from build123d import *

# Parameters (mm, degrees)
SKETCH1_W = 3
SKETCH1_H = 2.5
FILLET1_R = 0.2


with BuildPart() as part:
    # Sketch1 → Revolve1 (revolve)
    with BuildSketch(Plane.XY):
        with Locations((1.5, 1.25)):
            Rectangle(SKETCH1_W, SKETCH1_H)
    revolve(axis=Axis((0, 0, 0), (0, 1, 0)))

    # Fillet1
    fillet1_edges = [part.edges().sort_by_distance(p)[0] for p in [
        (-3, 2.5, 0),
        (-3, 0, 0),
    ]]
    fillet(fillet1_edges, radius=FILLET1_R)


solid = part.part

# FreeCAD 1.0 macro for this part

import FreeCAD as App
import Part
import Sketcher


def edges_at(feature, points):
    """Names of the edges that pass closest to the given points."""
    edges = feature.Shape.Edges
    near = lambda p: min(range(len(edges)), key=lambda i: edges[i].distToShape(Part.Vertex(*p))[0])
    return sorted({f"Edge{near(p) + 1}" for p in points})


def add_polygon(sketch, points):
    """Adds a closed chain of lines whose ends are joined by coincident constraints."""
    first, n = sketch.GeometryCount, len(points)
    for a, b in zip(points, points[1:] + points[:1]):
        sketch.addGeometry(Part.LineSegment(App.Vector(*a, 0), App.Vector(*b, 0)), False)
    for i in range(n):
        sketch.addConstraint(Sketcher.Constraint("Coincident", first + i, 2, first + (i + 1) % n, 1))

doc = App.newDocument("Part")
body = doc.addObject("PartDesign::Body", "Body")

sketch1 = body.newObject("Sketcher::SketchObject", "Sketch")
sketch1.AttachmentSupport = (doc.getObject("XY_Plane"), [""])
sketch1.MapMode = "FlatFace"
add_polygon(sketch1, [(0, 2.5), (0, 0), (3, 0), (3, 2.5)])
sketch1.addConstraint([
    Sketcher.Constraint("Vertical", 0),
    Sketcher.Constraint("Horizontal", 1),
    Sketcher.Constraint("Vertical", 2),
    Sketcher.Constraint("Horizontal", 3),
    Sketcher.Constraint("Coincident", 0, 2, -1, 1),
    Sketcher.Constraint("DistanceX", 1, 1, 1, 2, 3.0),
    Sketcher.Constraint("DistanceY", 0, 2, 0, 1, 2.5),
])
revolution = body.newObject("PartDesign::Revolution", "Revolution")
revolution.Profile = sketch1
revolution.ReferenceAxis = (sketch1, ["V_Axis"])
revolution.Angle = 360
doc.recompute()

fillet = body.newObject("PartDesign::Fillet", "Fillet")
fillet.Base = (revolution, edges_at(revolution, [(-3, 2.5, 0), (-3, 0, 0)]))
fillet.Radius = 0.2

doc.recompute()
